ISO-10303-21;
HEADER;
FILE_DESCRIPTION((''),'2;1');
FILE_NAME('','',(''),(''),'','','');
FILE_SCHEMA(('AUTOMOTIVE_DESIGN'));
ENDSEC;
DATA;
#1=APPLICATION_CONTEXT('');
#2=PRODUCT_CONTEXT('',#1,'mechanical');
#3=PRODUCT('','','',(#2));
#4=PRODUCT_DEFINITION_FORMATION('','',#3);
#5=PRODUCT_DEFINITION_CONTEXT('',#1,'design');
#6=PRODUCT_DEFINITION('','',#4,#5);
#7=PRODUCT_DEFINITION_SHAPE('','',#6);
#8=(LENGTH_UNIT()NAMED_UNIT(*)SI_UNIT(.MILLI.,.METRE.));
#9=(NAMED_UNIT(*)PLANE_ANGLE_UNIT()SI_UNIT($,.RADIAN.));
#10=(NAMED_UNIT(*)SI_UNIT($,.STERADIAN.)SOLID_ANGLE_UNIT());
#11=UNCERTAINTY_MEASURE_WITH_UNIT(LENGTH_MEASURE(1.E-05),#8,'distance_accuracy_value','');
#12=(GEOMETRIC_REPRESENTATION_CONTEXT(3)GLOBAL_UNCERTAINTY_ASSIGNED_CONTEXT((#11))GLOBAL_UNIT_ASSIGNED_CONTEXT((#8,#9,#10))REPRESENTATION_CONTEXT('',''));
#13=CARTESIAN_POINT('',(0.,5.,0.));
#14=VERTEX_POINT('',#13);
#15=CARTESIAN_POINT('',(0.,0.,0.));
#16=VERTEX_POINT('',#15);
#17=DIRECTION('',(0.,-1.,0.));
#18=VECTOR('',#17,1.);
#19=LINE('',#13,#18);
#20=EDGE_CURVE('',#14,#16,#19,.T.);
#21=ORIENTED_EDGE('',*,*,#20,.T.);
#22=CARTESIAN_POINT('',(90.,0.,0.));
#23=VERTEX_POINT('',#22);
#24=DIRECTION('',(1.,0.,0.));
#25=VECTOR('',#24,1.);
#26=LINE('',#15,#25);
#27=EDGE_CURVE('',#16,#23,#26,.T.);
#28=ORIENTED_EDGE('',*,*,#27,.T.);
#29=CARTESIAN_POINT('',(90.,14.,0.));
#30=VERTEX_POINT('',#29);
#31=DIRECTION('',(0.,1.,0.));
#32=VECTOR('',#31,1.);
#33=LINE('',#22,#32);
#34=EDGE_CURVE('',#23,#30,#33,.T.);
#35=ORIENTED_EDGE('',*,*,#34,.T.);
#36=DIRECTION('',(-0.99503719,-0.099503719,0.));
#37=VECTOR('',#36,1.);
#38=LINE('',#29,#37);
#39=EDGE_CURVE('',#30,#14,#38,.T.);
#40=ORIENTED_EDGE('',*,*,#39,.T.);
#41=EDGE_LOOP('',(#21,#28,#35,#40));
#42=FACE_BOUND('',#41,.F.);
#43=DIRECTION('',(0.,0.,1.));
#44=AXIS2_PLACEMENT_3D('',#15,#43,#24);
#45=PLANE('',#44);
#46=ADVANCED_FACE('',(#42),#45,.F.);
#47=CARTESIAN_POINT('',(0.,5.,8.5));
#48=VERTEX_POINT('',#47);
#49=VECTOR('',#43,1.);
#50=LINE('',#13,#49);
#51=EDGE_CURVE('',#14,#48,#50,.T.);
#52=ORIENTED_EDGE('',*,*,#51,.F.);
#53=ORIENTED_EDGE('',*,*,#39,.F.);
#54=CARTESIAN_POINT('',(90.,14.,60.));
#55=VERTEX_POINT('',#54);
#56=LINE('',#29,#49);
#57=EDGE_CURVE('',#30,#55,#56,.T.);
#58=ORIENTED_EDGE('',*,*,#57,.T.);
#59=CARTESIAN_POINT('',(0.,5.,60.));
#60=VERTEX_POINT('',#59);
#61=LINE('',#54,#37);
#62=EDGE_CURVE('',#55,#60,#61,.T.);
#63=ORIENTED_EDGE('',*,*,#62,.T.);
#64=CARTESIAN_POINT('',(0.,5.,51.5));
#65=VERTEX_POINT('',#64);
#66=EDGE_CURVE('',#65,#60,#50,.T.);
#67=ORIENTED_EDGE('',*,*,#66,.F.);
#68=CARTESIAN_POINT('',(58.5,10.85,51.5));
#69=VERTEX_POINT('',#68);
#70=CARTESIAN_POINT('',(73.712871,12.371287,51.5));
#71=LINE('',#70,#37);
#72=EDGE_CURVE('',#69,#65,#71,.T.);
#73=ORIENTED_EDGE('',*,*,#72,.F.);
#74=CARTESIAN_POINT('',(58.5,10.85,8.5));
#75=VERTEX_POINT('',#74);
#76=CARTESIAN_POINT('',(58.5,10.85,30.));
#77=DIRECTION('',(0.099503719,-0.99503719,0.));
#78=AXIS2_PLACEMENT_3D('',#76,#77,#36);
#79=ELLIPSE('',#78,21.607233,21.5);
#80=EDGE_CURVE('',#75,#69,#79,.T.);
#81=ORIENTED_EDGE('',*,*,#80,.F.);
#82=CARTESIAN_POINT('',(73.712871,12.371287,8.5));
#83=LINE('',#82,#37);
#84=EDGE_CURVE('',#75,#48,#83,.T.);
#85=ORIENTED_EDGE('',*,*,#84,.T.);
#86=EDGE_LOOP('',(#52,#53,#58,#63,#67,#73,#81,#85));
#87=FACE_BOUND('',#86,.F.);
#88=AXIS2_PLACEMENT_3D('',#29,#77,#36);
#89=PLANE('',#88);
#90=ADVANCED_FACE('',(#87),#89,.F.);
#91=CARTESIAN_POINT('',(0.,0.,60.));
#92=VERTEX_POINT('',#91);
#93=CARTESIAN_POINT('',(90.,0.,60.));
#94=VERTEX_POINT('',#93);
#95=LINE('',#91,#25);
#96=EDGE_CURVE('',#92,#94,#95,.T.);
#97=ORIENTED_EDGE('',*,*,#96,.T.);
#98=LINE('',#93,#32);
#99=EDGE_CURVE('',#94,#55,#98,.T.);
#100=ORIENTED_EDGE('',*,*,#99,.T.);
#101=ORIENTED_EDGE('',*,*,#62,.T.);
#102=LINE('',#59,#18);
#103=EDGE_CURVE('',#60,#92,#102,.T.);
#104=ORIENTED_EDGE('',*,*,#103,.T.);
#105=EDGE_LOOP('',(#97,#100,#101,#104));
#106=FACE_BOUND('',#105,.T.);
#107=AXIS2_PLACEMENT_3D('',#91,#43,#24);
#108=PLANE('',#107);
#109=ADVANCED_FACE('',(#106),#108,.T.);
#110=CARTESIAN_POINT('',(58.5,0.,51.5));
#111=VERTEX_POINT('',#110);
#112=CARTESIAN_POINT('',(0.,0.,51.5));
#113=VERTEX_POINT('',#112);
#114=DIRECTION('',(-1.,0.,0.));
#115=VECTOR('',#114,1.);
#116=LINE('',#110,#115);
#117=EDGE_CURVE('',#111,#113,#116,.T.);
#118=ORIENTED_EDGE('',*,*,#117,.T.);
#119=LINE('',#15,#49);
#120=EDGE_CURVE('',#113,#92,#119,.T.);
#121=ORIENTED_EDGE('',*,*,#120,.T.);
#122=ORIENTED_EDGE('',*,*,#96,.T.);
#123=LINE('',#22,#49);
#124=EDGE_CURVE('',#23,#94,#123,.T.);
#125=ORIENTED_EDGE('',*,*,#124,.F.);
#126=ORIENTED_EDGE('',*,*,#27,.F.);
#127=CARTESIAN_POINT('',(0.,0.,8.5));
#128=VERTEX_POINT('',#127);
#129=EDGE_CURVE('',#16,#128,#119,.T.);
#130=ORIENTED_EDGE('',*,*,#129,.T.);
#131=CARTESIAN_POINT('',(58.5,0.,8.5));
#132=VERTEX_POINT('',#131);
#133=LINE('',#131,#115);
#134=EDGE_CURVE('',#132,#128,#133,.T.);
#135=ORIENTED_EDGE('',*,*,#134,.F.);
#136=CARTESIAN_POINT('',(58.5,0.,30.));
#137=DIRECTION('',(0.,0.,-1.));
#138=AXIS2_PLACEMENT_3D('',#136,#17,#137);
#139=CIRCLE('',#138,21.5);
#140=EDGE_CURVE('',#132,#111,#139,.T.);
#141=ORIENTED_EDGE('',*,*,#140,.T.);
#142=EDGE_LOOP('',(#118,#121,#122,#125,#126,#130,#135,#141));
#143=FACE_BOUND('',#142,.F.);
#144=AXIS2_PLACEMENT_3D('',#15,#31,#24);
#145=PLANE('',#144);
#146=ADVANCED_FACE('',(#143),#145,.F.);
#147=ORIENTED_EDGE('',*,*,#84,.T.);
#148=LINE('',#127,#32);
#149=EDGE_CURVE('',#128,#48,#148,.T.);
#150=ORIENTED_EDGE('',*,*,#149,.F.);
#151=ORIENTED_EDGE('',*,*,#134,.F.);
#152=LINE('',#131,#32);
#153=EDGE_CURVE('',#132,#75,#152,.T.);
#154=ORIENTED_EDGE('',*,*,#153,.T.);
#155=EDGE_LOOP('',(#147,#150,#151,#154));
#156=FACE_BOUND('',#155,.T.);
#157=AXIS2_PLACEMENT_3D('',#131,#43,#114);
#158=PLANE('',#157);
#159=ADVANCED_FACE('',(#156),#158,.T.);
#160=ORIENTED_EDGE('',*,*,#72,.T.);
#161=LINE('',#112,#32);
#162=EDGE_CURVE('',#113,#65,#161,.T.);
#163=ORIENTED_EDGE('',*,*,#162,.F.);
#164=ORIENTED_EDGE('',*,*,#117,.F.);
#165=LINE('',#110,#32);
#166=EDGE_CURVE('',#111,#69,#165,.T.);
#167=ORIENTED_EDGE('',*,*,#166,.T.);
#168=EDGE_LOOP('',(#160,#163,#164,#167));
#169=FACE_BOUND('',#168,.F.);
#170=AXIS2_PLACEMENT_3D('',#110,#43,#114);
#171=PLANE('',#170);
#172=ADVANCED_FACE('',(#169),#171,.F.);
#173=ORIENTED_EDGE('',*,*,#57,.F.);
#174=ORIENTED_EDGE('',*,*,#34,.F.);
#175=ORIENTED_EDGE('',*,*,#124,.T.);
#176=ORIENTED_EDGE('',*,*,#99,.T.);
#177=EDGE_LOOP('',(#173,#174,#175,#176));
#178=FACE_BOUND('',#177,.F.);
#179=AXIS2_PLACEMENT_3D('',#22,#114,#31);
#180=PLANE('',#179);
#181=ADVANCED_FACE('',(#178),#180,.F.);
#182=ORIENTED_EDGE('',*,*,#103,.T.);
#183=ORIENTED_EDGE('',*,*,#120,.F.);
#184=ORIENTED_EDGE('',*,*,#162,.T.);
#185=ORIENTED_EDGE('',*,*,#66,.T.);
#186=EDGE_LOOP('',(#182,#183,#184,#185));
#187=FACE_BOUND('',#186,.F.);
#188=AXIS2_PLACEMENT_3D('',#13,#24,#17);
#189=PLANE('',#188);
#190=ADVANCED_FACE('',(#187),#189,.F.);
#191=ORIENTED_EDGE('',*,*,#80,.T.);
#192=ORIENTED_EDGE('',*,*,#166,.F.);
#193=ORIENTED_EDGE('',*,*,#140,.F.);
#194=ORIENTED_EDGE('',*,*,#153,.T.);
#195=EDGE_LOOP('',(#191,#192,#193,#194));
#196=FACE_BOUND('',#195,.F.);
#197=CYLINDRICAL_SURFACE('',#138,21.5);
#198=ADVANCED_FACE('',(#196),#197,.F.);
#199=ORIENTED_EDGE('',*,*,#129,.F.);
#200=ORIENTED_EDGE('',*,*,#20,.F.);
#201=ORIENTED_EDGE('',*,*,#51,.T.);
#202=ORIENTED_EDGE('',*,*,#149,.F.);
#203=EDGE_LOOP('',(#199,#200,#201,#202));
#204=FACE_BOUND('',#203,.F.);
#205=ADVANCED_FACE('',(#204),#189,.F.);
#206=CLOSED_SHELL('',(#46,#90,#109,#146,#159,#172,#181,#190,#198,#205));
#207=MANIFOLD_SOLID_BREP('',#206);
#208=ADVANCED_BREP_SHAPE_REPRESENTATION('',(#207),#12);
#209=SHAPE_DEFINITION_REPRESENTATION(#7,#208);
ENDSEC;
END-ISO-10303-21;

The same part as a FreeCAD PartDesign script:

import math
import FreeCAD as App
import Part
import Sketcher

V = App.Vector

doc = App.newDocument("Part")
body = doc.addObject("PartDesign::Body", "Body")

sketch1 = body.newObject("Sketcher::SketchObject", "Sketch")
sketch1.AttachmentSupport = (doc.getObject("XY_Plane"), [""])
sketch1.MapMode = "FlatFace"
sketch1.addGeometry([
    Part.LineSegment(V(0, 5, 0), V(0, 0, 0)),
    Part.LineSegment(V(0, 0, 0), V(90, 0, 0)),
    Part.LineSegment(V(90, 0, 0), V(90, 14, 0)),
    Part.LineSegment(V(90, 14, 0), V(0, 5, 0)),
], False)
sketch1.addConstraint([
    Sketcher.Constraint("Coincident", 0, 2, 1, 1),
    Sketcher.Constraint("Coincident", 1, 2, 2, 1),
    Sketcher.Constraint("Coincident", 2, 2, 3, 1),
    Sketcher.Constraint("Coincident", 3, 2, 0, 1),
    Sketcher.Constraint("Vertical", 0),
    Sketcher.Constraint("Horizontal", 1),
    Sketcher.Constraint("Vertical", 2),
    Sketcher.Constraint("Coincident", 0, 2, -1, 1),
    Sketcher.Constraint("DistanceX", 1, 1, 1, 2, 90.0),
    Sketcher.Constraint("DistanceY", 0, 2, 0, 1, 5.0),
    Sketcher.Constraint("DistanceY", 2, 1, 2, 2, 14.0),
])
pad1 = body.newObject("PartDesign::Pad", "Pad")
pad1.Profile = sketch1
pad1.Length = 60

sketch2 = body.newObject("Sketcher::SketchObject", "Sketch001")
sketch2.AttachmentSupport = (doc.getObject("XZ_Plane"), [""])
sketch2.MapMode = "FlatFace"
sketch2.addGeometry([
    Part.LineSegment(V(0, 52, 0), V(0, 8, 0)),
    Part.LineSegment(V(0, 8, 0), V(58, 8, 0)),
    Part.ArcOfCircle(Part.Circle(V(58, 30, 0), V(0, 0, 1), 22), math.radians(-90), math.radians(90)),
    Part.LineSegment(V(58, 52, 0), V(0, 52, 0)),
], False)
sketch2.addConstraint([
    Sketcher.Constraint("Coincident", 0, 2, 1, 1),
    Sketcher.Constraint("Tangent", 1, 2, 2, 1),
    Sketcher.Constraint("Tangent", 2, 2, 3, 1),
    Sketcher.Constraint("Coincident", 3, 2, 0, 1),
    Sketcher.Constraint("Vertical", 0),
    Sketcher.Constraint("Horizontal", 1),
    Sketcher.Constraint("Horizontal", 3),
    Sketcher.Constraint("PointOnObject", 0, 2, -2),
    Sketcher.Constraint("Radius", 2, 21.5),
    Sketcher.Constraint("DistanceX", 1, 1, 1, 2, 58.5),
    Sketcher.Constraint("DistanceY", -1, 1, 2, 3, 30.0),
])
pocket1 = body.newObject("PartDesign::Pocket", "Pocket")
pocket1.Profile = sketch2
pocket1.Length = 46.857

doc.recompute()
